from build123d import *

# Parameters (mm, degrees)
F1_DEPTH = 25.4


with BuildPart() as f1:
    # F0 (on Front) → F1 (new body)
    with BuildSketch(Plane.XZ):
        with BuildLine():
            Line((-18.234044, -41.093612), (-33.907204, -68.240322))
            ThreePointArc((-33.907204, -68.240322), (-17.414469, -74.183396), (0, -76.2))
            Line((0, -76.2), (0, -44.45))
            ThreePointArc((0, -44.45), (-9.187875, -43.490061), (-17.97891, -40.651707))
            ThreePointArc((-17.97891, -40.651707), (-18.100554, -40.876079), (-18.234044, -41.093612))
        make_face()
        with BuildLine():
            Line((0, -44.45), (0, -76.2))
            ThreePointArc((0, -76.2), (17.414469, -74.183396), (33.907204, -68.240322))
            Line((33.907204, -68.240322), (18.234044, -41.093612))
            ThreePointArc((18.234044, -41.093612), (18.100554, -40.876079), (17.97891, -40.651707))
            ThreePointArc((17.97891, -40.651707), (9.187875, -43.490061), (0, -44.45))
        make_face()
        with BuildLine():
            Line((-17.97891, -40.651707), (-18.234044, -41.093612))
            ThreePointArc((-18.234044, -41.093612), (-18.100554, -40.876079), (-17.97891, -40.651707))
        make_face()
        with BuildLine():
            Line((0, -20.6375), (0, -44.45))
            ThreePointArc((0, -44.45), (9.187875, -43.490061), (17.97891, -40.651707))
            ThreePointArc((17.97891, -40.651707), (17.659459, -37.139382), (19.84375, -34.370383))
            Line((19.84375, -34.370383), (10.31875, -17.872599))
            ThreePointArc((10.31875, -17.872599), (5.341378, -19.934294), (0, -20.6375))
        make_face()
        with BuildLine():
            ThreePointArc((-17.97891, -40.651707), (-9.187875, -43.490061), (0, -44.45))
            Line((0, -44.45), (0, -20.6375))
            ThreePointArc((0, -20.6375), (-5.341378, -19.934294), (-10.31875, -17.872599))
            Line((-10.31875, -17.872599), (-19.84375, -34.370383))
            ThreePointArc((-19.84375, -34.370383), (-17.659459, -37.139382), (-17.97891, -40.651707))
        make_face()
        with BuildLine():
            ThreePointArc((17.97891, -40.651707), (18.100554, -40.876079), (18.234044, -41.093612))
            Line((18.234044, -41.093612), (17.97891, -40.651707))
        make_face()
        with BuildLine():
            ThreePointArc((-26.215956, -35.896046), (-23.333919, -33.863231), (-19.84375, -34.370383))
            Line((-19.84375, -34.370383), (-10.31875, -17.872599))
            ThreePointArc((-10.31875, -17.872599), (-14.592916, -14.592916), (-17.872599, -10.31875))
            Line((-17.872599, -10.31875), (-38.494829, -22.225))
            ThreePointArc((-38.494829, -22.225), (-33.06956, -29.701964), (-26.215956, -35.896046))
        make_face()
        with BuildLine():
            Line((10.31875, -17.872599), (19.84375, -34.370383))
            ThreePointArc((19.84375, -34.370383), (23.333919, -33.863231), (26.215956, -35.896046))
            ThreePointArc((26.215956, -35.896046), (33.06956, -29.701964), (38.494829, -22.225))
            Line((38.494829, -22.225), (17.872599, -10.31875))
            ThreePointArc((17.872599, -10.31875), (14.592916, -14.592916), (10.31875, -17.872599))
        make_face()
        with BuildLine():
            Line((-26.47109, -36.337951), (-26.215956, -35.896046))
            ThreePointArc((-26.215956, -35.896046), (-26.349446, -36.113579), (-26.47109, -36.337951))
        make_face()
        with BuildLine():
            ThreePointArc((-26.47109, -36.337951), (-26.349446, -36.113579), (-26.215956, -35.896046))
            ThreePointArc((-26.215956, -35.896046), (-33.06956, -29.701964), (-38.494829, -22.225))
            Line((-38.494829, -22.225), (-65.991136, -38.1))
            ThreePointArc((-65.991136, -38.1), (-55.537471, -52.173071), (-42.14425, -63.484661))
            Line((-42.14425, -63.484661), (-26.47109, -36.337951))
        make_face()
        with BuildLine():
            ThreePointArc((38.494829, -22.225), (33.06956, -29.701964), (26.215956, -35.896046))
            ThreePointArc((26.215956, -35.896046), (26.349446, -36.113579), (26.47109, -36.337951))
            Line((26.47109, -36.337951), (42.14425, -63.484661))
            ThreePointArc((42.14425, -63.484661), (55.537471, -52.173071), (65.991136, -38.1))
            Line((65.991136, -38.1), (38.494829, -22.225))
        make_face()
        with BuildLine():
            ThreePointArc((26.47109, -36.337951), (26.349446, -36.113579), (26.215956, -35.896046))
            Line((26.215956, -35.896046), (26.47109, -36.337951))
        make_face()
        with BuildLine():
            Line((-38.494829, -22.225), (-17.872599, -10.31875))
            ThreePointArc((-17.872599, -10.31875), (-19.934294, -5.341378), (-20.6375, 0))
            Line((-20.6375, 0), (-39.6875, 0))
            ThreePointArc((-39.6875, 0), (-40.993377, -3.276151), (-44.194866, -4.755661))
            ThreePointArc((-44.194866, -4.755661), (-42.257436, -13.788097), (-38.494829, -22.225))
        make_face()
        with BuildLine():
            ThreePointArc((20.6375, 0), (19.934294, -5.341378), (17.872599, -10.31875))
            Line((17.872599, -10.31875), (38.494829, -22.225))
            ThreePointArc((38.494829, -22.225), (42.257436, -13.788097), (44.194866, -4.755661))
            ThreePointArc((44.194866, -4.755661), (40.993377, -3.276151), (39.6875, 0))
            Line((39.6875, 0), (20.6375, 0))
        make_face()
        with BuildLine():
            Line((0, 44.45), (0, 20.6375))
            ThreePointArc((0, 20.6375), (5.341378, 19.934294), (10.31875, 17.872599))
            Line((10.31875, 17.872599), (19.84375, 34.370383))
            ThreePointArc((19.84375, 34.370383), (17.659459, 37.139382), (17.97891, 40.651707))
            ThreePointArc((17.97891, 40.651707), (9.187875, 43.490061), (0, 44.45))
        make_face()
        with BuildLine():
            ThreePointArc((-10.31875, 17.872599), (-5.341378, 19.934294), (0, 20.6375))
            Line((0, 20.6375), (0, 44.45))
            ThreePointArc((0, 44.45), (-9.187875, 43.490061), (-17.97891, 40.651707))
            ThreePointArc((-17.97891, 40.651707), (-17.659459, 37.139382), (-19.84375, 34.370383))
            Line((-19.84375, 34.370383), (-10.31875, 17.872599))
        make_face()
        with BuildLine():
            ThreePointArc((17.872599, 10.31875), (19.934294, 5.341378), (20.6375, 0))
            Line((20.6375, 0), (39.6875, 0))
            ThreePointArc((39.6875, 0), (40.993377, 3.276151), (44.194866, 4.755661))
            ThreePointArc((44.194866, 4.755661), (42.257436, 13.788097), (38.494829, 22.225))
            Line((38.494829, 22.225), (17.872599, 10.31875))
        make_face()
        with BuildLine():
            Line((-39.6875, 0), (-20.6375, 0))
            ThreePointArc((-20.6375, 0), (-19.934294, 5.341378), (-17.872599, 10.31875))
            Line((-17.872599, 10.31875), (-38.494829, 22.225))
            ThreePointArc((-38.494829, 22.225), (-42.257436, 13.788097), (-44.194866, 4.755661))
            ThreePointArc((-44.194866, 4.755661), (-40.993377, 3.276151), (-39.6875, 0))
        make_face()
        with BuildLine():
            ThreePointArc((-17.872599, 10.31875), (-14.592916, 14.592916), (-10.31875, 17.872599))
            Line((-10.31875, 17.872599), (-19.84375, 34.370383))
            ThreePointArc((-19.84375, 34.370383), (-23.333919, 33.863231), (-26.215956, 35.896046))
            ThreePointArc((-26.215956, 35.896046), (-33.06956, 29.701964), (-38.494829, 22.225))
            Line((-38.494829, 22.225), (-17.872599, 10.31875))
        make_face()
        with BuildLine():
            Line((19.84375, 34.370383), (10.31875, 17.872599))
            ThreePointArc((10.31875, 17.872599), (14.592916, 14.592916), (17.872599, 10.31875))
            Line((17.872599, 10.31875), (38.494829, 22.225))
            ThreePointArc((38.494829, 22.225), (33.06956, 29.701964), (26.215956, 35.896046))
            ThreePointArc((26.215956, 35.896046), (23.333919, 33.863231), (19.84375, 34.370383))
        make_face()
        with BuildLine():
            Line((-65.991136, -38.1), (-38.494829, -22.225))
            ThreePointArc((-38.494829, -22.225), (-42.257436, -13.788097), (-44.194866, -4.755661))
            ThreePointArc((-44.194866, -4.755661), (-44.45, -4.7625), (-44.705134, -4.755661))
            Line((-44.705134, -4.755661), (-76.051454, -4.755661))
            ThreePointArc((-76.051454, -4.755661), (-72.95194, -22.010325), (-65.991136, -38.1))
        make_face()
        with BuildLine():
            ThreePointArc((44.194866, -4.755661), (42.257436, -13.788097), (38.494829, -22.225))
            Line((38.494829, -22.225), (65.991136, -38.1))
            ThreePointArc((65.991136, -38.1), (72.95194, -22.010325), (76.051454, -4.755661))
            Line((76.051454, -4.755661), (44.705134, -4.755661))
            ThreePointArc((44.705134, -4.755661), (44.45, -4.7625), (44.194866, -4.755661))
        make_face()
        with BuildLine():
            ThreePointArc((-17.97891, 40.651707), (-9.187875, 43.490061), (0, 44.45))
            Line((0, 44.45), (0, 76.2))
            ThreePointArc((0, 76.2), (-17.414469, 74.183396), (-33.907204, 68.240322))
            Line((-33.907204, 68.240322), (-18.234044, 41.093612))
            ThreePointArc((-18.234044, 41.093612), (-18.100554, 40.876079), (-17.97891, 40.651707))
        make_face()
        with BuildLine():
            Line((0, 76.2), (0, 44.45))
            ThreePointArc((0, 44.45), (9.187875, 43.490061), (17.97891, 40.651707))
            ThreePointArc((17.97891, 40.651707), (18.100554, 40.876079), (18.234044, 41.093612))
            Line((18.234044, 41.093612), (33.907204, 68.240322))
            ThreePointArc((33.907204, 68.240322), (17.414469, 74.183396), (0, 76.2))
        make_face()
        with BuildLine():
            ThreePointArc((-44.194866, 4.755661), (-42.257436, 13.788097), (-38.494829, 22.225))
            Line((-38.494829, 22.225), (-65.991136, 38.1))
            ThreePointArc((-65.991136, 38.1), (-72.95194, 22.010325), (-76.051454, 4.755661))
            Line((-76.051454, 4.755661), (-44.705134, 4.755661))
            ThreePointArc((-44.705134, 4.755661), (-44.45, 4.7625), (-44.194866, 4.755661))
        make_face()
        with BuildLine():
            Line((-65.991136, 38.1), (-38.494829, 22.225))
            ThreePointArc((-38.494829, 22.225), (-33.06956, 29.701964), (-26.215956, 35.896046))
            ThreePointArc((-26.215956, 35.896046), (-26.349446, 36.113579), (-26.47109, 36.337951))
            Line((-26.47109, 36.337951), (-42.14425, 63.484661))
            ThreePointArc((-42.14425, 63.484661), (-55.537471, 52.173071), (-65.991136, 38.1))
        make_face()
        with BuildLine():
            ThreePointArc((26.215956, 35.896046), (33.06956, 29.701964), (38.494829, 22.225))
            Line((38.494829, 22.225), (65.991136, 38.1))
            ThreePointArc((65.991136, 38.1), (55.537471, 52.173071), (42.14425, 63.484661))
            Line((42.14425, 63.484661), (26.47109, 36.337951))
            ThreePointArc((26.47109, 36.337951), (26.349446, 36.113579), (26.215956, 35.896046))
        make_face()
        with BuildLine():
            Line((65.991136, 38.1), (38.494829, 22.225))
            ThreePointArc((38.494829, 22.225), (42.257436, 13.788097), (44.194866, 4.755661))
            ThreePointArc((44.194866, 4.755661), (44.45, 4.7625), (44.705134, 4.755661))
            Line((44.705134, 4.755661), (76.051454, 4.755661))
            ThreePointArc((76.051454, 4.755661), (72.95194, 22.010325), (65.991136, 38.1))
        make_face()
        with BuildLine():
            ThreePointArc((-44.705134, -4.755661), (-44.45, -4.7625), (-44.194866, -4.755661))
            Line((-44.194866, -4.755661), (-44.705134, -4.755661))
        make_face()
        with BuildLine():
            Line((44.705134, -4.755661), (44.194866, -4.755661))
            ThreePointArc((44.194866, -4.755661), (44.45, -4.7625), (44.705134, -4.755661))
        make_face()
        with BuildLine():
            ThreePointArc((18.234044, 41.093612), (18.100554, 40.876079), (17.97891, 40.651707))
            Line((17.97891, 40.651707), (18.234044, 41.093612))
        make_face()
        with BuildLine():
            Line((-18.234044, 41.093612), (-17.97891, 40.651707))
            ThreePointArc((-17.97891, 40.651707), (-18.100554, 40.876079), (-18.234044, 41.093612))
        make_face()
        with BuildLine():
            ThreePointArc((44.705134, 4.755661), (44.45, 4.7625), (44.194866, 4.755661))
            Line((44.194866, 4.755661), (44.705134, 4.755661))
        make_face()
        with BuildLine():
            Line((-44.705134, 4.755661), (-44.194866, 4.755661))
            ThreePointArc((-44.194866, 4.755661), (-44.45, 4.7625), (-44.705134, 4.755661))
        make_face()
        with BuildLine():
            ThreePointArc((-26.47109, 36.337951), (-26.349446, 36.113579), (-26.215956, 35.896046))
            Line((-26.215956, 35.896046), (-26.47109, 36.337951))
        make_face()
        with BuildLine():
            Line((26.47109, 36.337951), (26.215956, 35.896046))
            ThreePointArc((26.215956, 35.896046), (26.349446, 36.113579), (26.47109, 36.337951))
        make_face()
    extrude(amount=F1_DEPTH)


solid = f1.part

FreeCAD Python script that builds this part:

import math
import FreeCAD as App
import Part
import Sketcher
Q = App.Units.Quantity

doc = App.newDocument("Part")
params = doc.addObject("Spreadsheet::Sheet", "Params")
for row, (alias, value) in enumerate([
    ("sketch1_radius", "2.9999999 in"),
    ("sketch1_radius2", "0.1875 in"),
    ("sketch1_radius3", "0.8125001 in"),
    ("pad1_length", "1 in"),
], start=1):
    params.set(f"A{row}", alias)
    params.set(f"B{row}", "=" + value)
    params.setAlias(f"B{row}", alias)

body = doc.addObject("PartDesign::Body", "Body")

sketch1 = doc.addObject("Sketcher::SketchObject", "Sketch")
body.addObject(sketch1)
sketch1.AttachmentSupport = (doc.XZ_Plane, [""])
sketch1.MapMode = "FlatFace"
sketch1.addGeometry([
    Part.LineSegment(App.Vector(-18.234044, -41.093612, 0), App.Vector(-33.907204, -68.240322, 0)),
    Part.ArcOfCircle(Part.Circle(App.Vector(0.000002, 0.00001, 0), App.Vector(0, 0, 1), 76.20001), math.radians(-116.421829), math.radians(-90.000001)),
    Part.ArcOfCircle(Part.Circle(App.Vector(-0.000002, 0.00001, 0), App.Vector(0, 0, 1), 76.20001), math.radians(-89.999999), math.radians(-63.578171)),
    Part.LineSegment(App.Vector(33.907204, -68.240322, 0), App.Vector(18.234044, -41.093612, 0)),
    Part.LineSegment(App.Vector(18.234044, -41.093612, 0), App.Vector(17.97891, -40.651707, 0)),
    Part.ArcOfCircle(Part.Circle(App.Vector(22.225001, -38.494829, 0), App.Vector(0, 0, 1), 4.762501), math.radians(120.000013), math.radians(206.929105)),
    Part.ArcOfCircle(Part.Circle(App.Vector(22.224999, -38.49483, 0), App.Vector(0, 0, 1), 4.762501), math.radians(33.070897), math.radians(119.999987)),
    Part.LineSegment(App.Vector(26.215956, -35.896046, 0), App.Vector(26.47109, -36.337951, 0)),
    Part.LineSegment(App.Vector(26.47109, -36.337951, 0), App.Vector(42.14425, -63.484661, 0)),
    Part.ArcOfCircle(Part.Circle(App.Vector(0.000003, -0.000002, 0), App.Vector(0, 0, 1), 76.199997), math.radians(-56.421832), math.radians(-30)),
    Part.ArcOfCircle(Part.Circle(App.Vector(-0.00001, 0.000002, 0), App.Vector(0, 0, 1), 76.20001), math.radians(-29.999997), math.radians(-3.57817)),
    Part.LineSegment(App.Vector(76.051454, -4.755661, 0), App.Vector(44.194866, -4.755661, 0)),
    Part.ArcOfCircle(Part.Circle(App.Vector(44.449999, -0.000001, 0), App.Vector(0, 0, 1), 4.762499), math.radians(179.999993), math.radians(266.929121)),
    Part.ArcOfCircle(Part.Circle(App.Vector(44.449999, 0.000001, 0), App.Vector(0, 0, 1), 4.762499), math.radians(93.070879), math.radians(180.000007)),
    Part.LineSegment(App.Vector(44.194866, 4.755661, 0), App.Vector(76.051454, 4.755661, 0)),
    Part.ArcOfCircle(Part.Circle(App.Vector(-0.00001, -0.000002, 0), App.Vector(0, 0, 1), 76.20001), math.radians(3.57817), math.radians(29.999997)),
    Part.ArcOfCircle(Part.Circle(App.Vector(0.000003, 0.000002, 0), App.Vector(0, 0, 1), 76.199997), math.radians(30), math.radians(56.421832)),
    Part.LineSegment(App.Vector(42.14425, 63.484661, 0), App.Vector(26.47109, 36.337951, 0)),
    Part.LineSegment(App.Vector(26.47109, 36.337951, 0), App.Vector(26.215956, 35.896046, 0)),
    Part.ArcOfCircle(Part.Circle(App.Vector(22.224999, 38.49483, 0), App.Vector(0, 0, 1), 4.762501), math.radians(-119.999987), math.radians(-33.070897)),
    Part.ArcOfCircle(Part.Circle(App.Vector(22.225001, 38.494829, 0), App.Vector(0, 0, 1), 4.762501), math.radians(153.070895), math.radians(239.999987)),
    Part.LineSegment(App.Vector(17.97891, 40.651707, 0), App.Vector(18.234044, 41.093612, 0)),
    Part.LineSegment(App.Vector(18.234044, 41.093612, 0), App.Vector(33.907204, 68.240322, 0)),
    Part.ArcOfCircle(Part.Circle(App.Vector(-0.000002, -0.00001, 0), App.Vector(0, 0, 1), 76.20001), math.radians(63.578171), math.radians(89.999999)),
    Part.ArcOfCircle(Part.Circle(App.Vector(0.000002, -0.00001, 0), App.Vector(0, 0, 1), 76.20001), math.radians(90.000001), math.radians(116.421829)),
    Part.LineSegment(App.Vector(-33.907204, 68.240322, 0), App.Vector(-18.234044, 41.093612, 0)),
    Part.LineSegment(App.Vector(-18.234044, 41.093612, 0), App.Vector(-17.97891, 40.651707, 0)),
    Part.ArcOfCircle(Part.Circle(App.Vector(-22.225001, 38.494829, 0), App.Vector(0, 0, 1), 4.762501), math.radians(-59.999987), math.radians(26.929105)),
    Part.ArcOfCircle(Part.Circle(App.Vector(-22.224999, 38.49483, 0), App.Vector(0, 0, 1), 4.762501), math.radians(-146.929103), math.radians(-60.000013)),
    Part.LineSegment(App.Vector(-26.215956, 35.896046, 0), App.Vector(-26.47109, 36.337951, 0)),
    Part.LineSegment(App.Vector(-26.47109, 36.337951, 0), App.Vector(-42.14425, 63.484661, 0)),
    Part.ArcOfCircle(Part.Circle(App.Vector(-0.000003, 0.000002, 0), App.Vector(0, 0, 1), 76.199997), math.radians(123.578168), math.radians(150)),
    Part.ArcOfCircle(Part.Circle(App.Vector(0.00001, -0.000002, 0), App.Vector(0, 0, 1), 76.20001), math.radians(150.000003), math.radians(176.42183)),
    Part.LineSegment(App.Vector(-76.051454, 4.755661, 0), App.Vector(-44.194866, 4.755661, 0)),
    Part.ArcOfCircle(Part.Circle(App.Vector(-44.449999, 0.000001, 0), App.Vector(0, 0, 1), 4.762499), math.radians(-0.000007), math.radians(86.929121)),
    Part.ArcOfCircle(Part.Circle(App.Vector(-44.449999, -0.000001, 0), App.Vector(0, 0, 1), 4.762499), math.radians(-86.929121), math.radians(0.000007)),
    Part.LineSegment(App.Vector(-44.194866, -4.755661, 0), App.Vector(-76.051454, -4.755661, 0)),
    Part.ArcOfCircle(Part.Circle(App.Vector(0.00001, 0.000002, 0), App.Vector(0, 0, 1), 76.20001), math.radians(-176.42183), math.radians(-150.000003)),
    Part.ArcOfCircle(Part.Circle(App.Vector(-0.000003, -0.000002, 0), App.Vector(0, 0, 1), 76.199997), math.radians(-150), math.radians(-123.578168)),
    Part.LineSegment(App.Vector(-42.14425, -63.484661, 0), App.Vector(-26.47109, -36.337951, 0)),
    Part.LineSegment(App.Vector(-26.47109, -36.337951, 0), App.Vector(-26.215956, -35.896046, 0)),
    Part.ArcOfCircle(Part.Circle(App.Vector(-22.224999, -38.49483, 0), App.Vector(0, 0, 1), 4.762501), math.radians(60.000013), math.radians(146.929103)),
    Part.ArcOfCircle(Part.Circle(App.Vector(-22.225001, -38.494829, 0), App.Vector(0, 0, 1), 4.762501), math.radians(-26.929105), math.radians(59.999987)),
    Part.LineSegment(App.Vector(-17.97891, -40.651707, 0), App.Vector(-18.234044, -41.093612, 0)),
    Part.ArcOfCircle(Part.Circle(App.Vector(-0.000003, -0.000001, 0), App.Vector(0, 0, 1), 20.637503), math.radians(0.000004), math.radians(29.999999)),
    Part.ArcOfCircle(Part.Circle(App.Vector(-0.000003, 0.000001, 0), App.Vector(0, 0, 1), 20.637503), math.radians(-29.999999), math.radians(-0.000004)),
    Part.ArcOfCircle(Part.Circle(App.Vector(-0.000001, 0.000001, 0), App.Vector(0, 0, 1), 20.637501), math.radians(-59.999999), math.radians(-30.000001)),
    Part.ArcOfCircle(Part.Circle(App.Vector(-0.000001, 0.000003, 0), App.Vector(0, 0, 1), 20.637503), math.radians(-89.999996), math.radians(-60.000001)),
    Part.ArcOfCircle(Part.Circle(App.Vector(0.000001, 0.000003, 0), App.Vector(0, 0, 1), 20.637503), math.radians(-119.999999), math.radians(-90.000004)),
    Part.ArcOfCircle(Part.Circle(App.Vector(0.000001, 0.000001, 0), App.Vector(0, 0, 1), 20.637501), math.radians(-149.999999), math.radians(-120.000001)),
    Part.ArcOfCircle(Part.Circle(App.Vector(0.000003, 0.000001, 0), App.Vector(0, 0, 1), 20.637503), math.radians(-179.999996), math.radians(-150.000001)),
    Part.ArcOfCircle(Part.Circle(App.Vector(0.000003, -0.000001, 0), App.Vector(0, 0, 1), 20.637503), math.radians(150.000001), math.radians(179.999996)),
    Part.ArcOfCircle(Part.Circle(App.Vector(0.000001, -0.000001, 0), App.Vector(0, 0, 1), 20.637501), math.radians(120.000001), math.radians(149.999999)),
    Part.ArcOfCircle(Part.Circle(App.Vector(0.000001, -0.000003, 0), App.Vector(0, 0, 1), 20.637503), math.radians(90.000004), math.radians(119.999999)),
    Part.ArcOfCircle(Part.Circle(App.Vector(-0.000001, -0.000003, 0), App.Vector(0, 0, 1), 20.637503), math.radians(60.000001), math.radians(89.999996)),
    Part.ArcOfCircle(Part.Circle(App.Vector(-0.000001, -0.000001, 0), App.Vector(0, 0, 1), 20.637501), math.radians(30.000001), math.radians(59.999999)),
], False)
sketch1.addConstraint([
    Sketcher.Constraint("Coincident", 0, 2, 1, 1),
    Sketcher.Constraint("Tangent", 1, 2, 2, 1),
    Sketcher.Constraint("Coincident", 2, 2, 3, 1),
    Sketcher.Constraint("Coincident", 3, 2, 4, 1),
    Sketcher.Constraint("Coincident", 4, 2, 5, 2),
    Sketcher.Constraint("Tangent", 5, 1, 6, 2),
    Sketcher.Constraint("Coincident", 6, 1, 7, 1),
    Sketcher.Constraint("Coincident", 7, 2, 8, 1),
    Sketcher.Constraint("Coincident", 8, 2, 9, 1),
    Sketcher.Constraint("Tangent", 9, 2, 10, 1),
    Sketcher.Constraint("Coincident", 10, 2, 11, 1),
    Sketcher.Constraint("Coincident", 11, 2, 12, 2),
    Sketcher.Constraint("Tangent", 12, 1, 13, 2),
    Sketcher.Constraint("Coincident", 13, 1, 14, 1),
    Sketcher.Constraint("Coincident", 14, 2, 15, 1),
    Sketcher.Constraint("Tangent", 15, 2, 16, 1),
    Sketcher.Constraint("Coincident", 16, 2, 17, 1),
    Sketcher.Constraint("Coincident", 17, 2, 18, 1),
    Sketcher.Constraint("Coincident", 18, 2, 19, 2),
    Sketcher.Constraint("Tangent", 19, 1, 20, 2),
    Sketcher.Constraint("Coincident", 20, 1, 21, 1),
    Sketcher.Constraint("Coincident", 21, 2, 22, 1),
    Sketcher.Constraint("Coincident", 22, 2, 23, 1),
    Sketcher.Constraint("Tangent", 23, 2, 24, 1),
    Sketcher.Constraint("Coincident", 24, 2, 25, 1),
    Sketcher.Constraint("Coincident", 25, 2, 26, 1),
    Sketcher.Constraint("Coincident", 26, 2, 27, 2),
    Sketcher.Constraint("Tangent", 27, 1, 28, 2),
    Sketcher.Constraint("Coincident", 28, 1, 29, 1),
    Sketcher.Constraint("Coincident", 29, 2, 30, 1),
    Sketcher.Constraint("Coincident", 30, 2, 31, 1),
    Sketcher.Constraint("Tangent", 31, 2, 32, 1),
    Sketcher.Constraint("Coincident", 32, 2, 33, 1),
    Sketcher.Constraint("Coincident", 33, 2, 34, 2),
    Sketcher.Constraint("Tangent", 34, 1, 35, 2),
    Sketcher.Constraint("Coincident", 35, 1, 36, 1),
    Sketcher.Constraint("Coincident", 36, 2, 37, 1),
    Sketcher.Constraint("Tangent", 37, 2, 38, 1),
    Sketcher.Constraint("Coincident", 38, 2, 39, 1),
    Sketcher.Constraint("Coincident", 39, 2, 40, 1),
    Sketcher.Constraint("Coincident", 40, 2, 41, 2),
    Sketcher.Constraint("Tangent", 41, 1, 42, 2),
    Sketcher.Constraint("Coincident", 42, 1, 43, 1),
    Sketcher.Constraint("Coincident", 43, 2, 0, 1),
    Sketcher.Constraint("Tangent", 44, 1, 45, 2),
    Sketcher.Constraint("Tangent", 45, 1, 46, 2),
    Sketcher.Constraint("Tangent", 46, 1, 47, 2),
    Sketcher.Constraint("Tangent", 47, 1, 48, 2),
    Sketcher.Constraint("Tangent", 48, 1, 49, 2),
    Sketcher.Constraint("Tangent", 49, 1, 50, 2),
    Sketcher.Constraint("Tangent", 50, 1, 51, 2),
    Sketcher.Constraint("Tangent", 51, 1, 52, 2),
    Sketcher.Constraint("Tangent", 52, 1, 53, 2),
    Sketcher.Constraint("Tangent", 53, 1, 54, 2),
    Sketcher.Constraint("Tangent", 54, 1, 55, 2),
    Sketcher.Constraint("Tangent", 55, 1, 44, 2),
    Sketcher.Constraint("Horizontal", 11),
    Sketcher.Constraint("Horizontal", 14),
    Sketcher.Constraint("Horizontal", 33),
    Sketcher.Constraint("Horizontal", 36),
    Sketcher.Constraint("Coincident", 9, 3, -1, 1),
    Sketcher.Constraint("Coincident", 16, 3, -1, 1),
    Sketcher.Constraint("Coincident", 31, 3, -1, 1),
    Sketcher.Constraint("Coincident", 38, 3, -1, 1),
    Sketcher.Constraint("Coincident", 44, 3, -1, 1),
    Sketcher.Constraint("Coincident", 46, 3, -1, 1),
    Sketcher.Constraint("Coincident", 48, 3, -1, 1),
    Sketcher.Constraint("Coincident", 50, 3, -1, 1),
    Sketcher.Constraint("Coincident", 52, 3, -1, 1),
    Sketcher.Constraint("Coincident", 15, 3, 10, 3),
    Sketcher.Constraint("Coincident", 16, 3, 1, 3),
    Sketcher.Constraint("Coincident", 23, 3, 9, 3),
    Sketcher.Constraint("Equal", 1, 2),
    Sketcher.Constraint("Equal", 5, 6),
    Sketcher.Constraint("Equal", 2, 10),
    Sketcher.Constraint("Equal", 6, 12),
    Sketcher.Constraint("Equal", 12, 13),
    Sketcher.Constraint("Equal", 10, 15),
    Sketcher.Constraint("Equal", 13, 19),
    Sketcher.Constraint("Equal", 19, 20),
    Sketcher.Constraint("Equal", 15, 23),
    Sketcher.Constraint("Equal", 23, 24),
    Sketcher.Constraint("Equal", 20, 27),
    Sketcher.Constraint("Equal", 27, 28),
    Sketcher.Constraint("Equal", 16, 31),
    Sketcher.Constraint("Equal", 24, 32),
    Sketcher.Constraint("Equal", 28, 34),
    Sketcher.Constraint("Equal", 34, 35),
    Sketcher.Constraint("Equal", 32, 37),
    Sketcher.Constraint("Equal", 31, 38),
    Sketcher.Constraint("Equal", 35, 41),
    Sketcher.Constraint("Equal", 41, 42),
    Sketcher.Constraint("Equal", 51, 53),
    Sketcher.Constraint("Symmetric", 5, 3, 27, 3, -1, 1),
    Sketcher.Constraint("Symmetric", 12, 3, 34, 3, -1, 1),
    Sketcher.Constraint("Symmetric", 19, 3, 41, 3, -1, 1),
    Sketcher.Constraint("Symmetric", 3, 2, 25, 2, -1, 1),
    Sketcher.Constraint("Symmetric", 7, 2, 29, 2, -1, 1),
    Sketcher.Constraint("Symmetric", 17, 2, 39, 2, -1, 1),
    Sketcher.Constraint("Symmetric", 21, 2, 43, 2, -1, 1),
    Sketcher.Constraint("Symmetric", 19, 3, 27, 3, -2),
    Sketcher.Constraint("Symmetric", 21, 2, 25, 2, -2),
    Sketcher.Constraint("Symmetric", 17, 2, 29, 2, -2),
    Sketcher.Constraint("Symmetric", 13, 1, 33, 2, -2),
    Sketcher.Constraint("PointOnObject", 1, 2, -2),
    Sketcher.Constraint("PointOnObject", 12, 1, -1),
    Sketcher.Constraint("PointOnObject", 23, 2, -2),
    Sketcher.Constraint("PointOnObject", 34, 1, -1),
    Sketcher.Constraint("PointOnObject", 44, 1, -1),
    Sketcher.Constraint("PointOnObject", 47, 1, -2),
    Sketcher.Constraint("PointOnObject", 50, 1, -1),
    Sketcher.Constraint("PointOnObject", 53, 1, -2),
    Sketcher.Constraint("Parallel", 3, 4),
    Sketcher.Constraint("Parallel", 4, 7),
    Sketcher.Constraint("Parallel", 7, 8),
    Sketcher.Constraint("Parallel", 0, 17),
    Sketcher.Constraint("Parallel", 17, 18),
    Sketcher.Constraint("Parallel", 18, 21),
    Sketcher.Constraint("Parallel", 21, 22),
    Sketcher.Constraint("Parallel", 8, 25),
    Sketcher.Constraint("Parallel", 25, 26),
    Sketcher.Constraint("Parallel", 26, 29),
    Sketcher.Constraint("Parallel", 29, 30),
    Sketcher.Constraint("Parallel", 22, 39),
    Sketcher.Constraint("Parallel", 39, 40),
    Sketcher.Constraint("Parallel", 40, 43),
    Sketcher.Constraint("Horizontal", 0, 2, 2, 2),
    Sketcher.Constraint("Horizontal", 19, 1, 27, 1),
    Sketcher.Constraint("Horizontal", 15, 2, 31, 2),
    Sketcher.Constraint("Horizontal", 11, 2, 35, 1),
    Sketcher.Constraint("Horizontal", 9, 2, 37, 2),
    Sketcher.Constraint("Horizontal", 5, 1, 41, 1),
    Sketcher.Constraint("Horizontal", 46, 1, 48, 1),
    Sketcher.Constraint("Horizontal", 45, 1, 49, 1),
    Sketcher.Constraint("Horizontal", 52, 1, 54, 1),
    Sketcher.Constraint("Horizontal", 51, 1, 55, 1),
    Sketcher.Constraint("Vertical", 11, 2, 13, 1),
    Sketcher.Constraint("Vertical", 9, 2, 15, 2),
    Sketcher.Constraint("Vertical", 5, 1, 19, 1),
    Sketcher.Constraint("Vertical", 49, 1, 51, 1),
    Sketcher.Constraint("Vertical", 48, 1, 52, 1),
    Sketcher.Constraint("Equal", 4, 7),
    Sketcher.Constraint("Equal", 3, 8),
    Sketcher.Constraint("Radius", 9, Q("2.9999999 in")),
    Sketcher.Constraint("Angle", 0, Q("-119.999999 deg")),
    Sketcher.Constraint("Radius", 5, Q("0.1875 in")),
    Sketcher.Constraint("Radius", 44, Q("0.8125001 in")),
    Sketcher.Constraint("DistanceY", 9, 2, -1, 1, Q("1.5 in")),
    Sketcher.Constraint("DistanceX", -1, 1, 12, 3, Q("1.75 in")),
    Sketcher.Constraint("DistanceX", -1, 1, 5, 3, Q("0.8750001 in")),
    Sketcher.Constraint("DistanceX", -1, 1, 5, 1, Q("0.78125 in")),
    Sketcher.Constraint("DistanceY", 45, 1, -1, 1, Q("0.40625 in")),
    Sketcher.Constraint("DistanceX", -1, 1, 46, 1, Q("0.40625 in")),
    Sketcher.Constraint("DistanceX", 11, 2, 11, 1, Q("31.856588 mm")),
    Sketcher.Constraint("Distance", 0, Q("31.34632 mm")),
    Sketcher.Constraint("DistanceY", 5, 3, -1, 1, Q("38.494829 mm")),
    Sketcher.Constraint("DistanceX", -1, 1, 4, 2, Q("17.97891 mm")),
])
sketch1.setExpression("Constraints[143]", "Params.sketch1_radius")
sketch1.setExpression("Constraints[145]", "Params.sketch1_radius2")
sketch1.setExpression("Constraints[146]", "Params.sketch1_radius3")
pad1 = doc.addObject("PartDesign::Pad", "Pad")
body.addObject(pad1)
pad1.Profile = sketch1
pad1.setExpression("Length", "Params.pad1_length")

doc.recompute()
